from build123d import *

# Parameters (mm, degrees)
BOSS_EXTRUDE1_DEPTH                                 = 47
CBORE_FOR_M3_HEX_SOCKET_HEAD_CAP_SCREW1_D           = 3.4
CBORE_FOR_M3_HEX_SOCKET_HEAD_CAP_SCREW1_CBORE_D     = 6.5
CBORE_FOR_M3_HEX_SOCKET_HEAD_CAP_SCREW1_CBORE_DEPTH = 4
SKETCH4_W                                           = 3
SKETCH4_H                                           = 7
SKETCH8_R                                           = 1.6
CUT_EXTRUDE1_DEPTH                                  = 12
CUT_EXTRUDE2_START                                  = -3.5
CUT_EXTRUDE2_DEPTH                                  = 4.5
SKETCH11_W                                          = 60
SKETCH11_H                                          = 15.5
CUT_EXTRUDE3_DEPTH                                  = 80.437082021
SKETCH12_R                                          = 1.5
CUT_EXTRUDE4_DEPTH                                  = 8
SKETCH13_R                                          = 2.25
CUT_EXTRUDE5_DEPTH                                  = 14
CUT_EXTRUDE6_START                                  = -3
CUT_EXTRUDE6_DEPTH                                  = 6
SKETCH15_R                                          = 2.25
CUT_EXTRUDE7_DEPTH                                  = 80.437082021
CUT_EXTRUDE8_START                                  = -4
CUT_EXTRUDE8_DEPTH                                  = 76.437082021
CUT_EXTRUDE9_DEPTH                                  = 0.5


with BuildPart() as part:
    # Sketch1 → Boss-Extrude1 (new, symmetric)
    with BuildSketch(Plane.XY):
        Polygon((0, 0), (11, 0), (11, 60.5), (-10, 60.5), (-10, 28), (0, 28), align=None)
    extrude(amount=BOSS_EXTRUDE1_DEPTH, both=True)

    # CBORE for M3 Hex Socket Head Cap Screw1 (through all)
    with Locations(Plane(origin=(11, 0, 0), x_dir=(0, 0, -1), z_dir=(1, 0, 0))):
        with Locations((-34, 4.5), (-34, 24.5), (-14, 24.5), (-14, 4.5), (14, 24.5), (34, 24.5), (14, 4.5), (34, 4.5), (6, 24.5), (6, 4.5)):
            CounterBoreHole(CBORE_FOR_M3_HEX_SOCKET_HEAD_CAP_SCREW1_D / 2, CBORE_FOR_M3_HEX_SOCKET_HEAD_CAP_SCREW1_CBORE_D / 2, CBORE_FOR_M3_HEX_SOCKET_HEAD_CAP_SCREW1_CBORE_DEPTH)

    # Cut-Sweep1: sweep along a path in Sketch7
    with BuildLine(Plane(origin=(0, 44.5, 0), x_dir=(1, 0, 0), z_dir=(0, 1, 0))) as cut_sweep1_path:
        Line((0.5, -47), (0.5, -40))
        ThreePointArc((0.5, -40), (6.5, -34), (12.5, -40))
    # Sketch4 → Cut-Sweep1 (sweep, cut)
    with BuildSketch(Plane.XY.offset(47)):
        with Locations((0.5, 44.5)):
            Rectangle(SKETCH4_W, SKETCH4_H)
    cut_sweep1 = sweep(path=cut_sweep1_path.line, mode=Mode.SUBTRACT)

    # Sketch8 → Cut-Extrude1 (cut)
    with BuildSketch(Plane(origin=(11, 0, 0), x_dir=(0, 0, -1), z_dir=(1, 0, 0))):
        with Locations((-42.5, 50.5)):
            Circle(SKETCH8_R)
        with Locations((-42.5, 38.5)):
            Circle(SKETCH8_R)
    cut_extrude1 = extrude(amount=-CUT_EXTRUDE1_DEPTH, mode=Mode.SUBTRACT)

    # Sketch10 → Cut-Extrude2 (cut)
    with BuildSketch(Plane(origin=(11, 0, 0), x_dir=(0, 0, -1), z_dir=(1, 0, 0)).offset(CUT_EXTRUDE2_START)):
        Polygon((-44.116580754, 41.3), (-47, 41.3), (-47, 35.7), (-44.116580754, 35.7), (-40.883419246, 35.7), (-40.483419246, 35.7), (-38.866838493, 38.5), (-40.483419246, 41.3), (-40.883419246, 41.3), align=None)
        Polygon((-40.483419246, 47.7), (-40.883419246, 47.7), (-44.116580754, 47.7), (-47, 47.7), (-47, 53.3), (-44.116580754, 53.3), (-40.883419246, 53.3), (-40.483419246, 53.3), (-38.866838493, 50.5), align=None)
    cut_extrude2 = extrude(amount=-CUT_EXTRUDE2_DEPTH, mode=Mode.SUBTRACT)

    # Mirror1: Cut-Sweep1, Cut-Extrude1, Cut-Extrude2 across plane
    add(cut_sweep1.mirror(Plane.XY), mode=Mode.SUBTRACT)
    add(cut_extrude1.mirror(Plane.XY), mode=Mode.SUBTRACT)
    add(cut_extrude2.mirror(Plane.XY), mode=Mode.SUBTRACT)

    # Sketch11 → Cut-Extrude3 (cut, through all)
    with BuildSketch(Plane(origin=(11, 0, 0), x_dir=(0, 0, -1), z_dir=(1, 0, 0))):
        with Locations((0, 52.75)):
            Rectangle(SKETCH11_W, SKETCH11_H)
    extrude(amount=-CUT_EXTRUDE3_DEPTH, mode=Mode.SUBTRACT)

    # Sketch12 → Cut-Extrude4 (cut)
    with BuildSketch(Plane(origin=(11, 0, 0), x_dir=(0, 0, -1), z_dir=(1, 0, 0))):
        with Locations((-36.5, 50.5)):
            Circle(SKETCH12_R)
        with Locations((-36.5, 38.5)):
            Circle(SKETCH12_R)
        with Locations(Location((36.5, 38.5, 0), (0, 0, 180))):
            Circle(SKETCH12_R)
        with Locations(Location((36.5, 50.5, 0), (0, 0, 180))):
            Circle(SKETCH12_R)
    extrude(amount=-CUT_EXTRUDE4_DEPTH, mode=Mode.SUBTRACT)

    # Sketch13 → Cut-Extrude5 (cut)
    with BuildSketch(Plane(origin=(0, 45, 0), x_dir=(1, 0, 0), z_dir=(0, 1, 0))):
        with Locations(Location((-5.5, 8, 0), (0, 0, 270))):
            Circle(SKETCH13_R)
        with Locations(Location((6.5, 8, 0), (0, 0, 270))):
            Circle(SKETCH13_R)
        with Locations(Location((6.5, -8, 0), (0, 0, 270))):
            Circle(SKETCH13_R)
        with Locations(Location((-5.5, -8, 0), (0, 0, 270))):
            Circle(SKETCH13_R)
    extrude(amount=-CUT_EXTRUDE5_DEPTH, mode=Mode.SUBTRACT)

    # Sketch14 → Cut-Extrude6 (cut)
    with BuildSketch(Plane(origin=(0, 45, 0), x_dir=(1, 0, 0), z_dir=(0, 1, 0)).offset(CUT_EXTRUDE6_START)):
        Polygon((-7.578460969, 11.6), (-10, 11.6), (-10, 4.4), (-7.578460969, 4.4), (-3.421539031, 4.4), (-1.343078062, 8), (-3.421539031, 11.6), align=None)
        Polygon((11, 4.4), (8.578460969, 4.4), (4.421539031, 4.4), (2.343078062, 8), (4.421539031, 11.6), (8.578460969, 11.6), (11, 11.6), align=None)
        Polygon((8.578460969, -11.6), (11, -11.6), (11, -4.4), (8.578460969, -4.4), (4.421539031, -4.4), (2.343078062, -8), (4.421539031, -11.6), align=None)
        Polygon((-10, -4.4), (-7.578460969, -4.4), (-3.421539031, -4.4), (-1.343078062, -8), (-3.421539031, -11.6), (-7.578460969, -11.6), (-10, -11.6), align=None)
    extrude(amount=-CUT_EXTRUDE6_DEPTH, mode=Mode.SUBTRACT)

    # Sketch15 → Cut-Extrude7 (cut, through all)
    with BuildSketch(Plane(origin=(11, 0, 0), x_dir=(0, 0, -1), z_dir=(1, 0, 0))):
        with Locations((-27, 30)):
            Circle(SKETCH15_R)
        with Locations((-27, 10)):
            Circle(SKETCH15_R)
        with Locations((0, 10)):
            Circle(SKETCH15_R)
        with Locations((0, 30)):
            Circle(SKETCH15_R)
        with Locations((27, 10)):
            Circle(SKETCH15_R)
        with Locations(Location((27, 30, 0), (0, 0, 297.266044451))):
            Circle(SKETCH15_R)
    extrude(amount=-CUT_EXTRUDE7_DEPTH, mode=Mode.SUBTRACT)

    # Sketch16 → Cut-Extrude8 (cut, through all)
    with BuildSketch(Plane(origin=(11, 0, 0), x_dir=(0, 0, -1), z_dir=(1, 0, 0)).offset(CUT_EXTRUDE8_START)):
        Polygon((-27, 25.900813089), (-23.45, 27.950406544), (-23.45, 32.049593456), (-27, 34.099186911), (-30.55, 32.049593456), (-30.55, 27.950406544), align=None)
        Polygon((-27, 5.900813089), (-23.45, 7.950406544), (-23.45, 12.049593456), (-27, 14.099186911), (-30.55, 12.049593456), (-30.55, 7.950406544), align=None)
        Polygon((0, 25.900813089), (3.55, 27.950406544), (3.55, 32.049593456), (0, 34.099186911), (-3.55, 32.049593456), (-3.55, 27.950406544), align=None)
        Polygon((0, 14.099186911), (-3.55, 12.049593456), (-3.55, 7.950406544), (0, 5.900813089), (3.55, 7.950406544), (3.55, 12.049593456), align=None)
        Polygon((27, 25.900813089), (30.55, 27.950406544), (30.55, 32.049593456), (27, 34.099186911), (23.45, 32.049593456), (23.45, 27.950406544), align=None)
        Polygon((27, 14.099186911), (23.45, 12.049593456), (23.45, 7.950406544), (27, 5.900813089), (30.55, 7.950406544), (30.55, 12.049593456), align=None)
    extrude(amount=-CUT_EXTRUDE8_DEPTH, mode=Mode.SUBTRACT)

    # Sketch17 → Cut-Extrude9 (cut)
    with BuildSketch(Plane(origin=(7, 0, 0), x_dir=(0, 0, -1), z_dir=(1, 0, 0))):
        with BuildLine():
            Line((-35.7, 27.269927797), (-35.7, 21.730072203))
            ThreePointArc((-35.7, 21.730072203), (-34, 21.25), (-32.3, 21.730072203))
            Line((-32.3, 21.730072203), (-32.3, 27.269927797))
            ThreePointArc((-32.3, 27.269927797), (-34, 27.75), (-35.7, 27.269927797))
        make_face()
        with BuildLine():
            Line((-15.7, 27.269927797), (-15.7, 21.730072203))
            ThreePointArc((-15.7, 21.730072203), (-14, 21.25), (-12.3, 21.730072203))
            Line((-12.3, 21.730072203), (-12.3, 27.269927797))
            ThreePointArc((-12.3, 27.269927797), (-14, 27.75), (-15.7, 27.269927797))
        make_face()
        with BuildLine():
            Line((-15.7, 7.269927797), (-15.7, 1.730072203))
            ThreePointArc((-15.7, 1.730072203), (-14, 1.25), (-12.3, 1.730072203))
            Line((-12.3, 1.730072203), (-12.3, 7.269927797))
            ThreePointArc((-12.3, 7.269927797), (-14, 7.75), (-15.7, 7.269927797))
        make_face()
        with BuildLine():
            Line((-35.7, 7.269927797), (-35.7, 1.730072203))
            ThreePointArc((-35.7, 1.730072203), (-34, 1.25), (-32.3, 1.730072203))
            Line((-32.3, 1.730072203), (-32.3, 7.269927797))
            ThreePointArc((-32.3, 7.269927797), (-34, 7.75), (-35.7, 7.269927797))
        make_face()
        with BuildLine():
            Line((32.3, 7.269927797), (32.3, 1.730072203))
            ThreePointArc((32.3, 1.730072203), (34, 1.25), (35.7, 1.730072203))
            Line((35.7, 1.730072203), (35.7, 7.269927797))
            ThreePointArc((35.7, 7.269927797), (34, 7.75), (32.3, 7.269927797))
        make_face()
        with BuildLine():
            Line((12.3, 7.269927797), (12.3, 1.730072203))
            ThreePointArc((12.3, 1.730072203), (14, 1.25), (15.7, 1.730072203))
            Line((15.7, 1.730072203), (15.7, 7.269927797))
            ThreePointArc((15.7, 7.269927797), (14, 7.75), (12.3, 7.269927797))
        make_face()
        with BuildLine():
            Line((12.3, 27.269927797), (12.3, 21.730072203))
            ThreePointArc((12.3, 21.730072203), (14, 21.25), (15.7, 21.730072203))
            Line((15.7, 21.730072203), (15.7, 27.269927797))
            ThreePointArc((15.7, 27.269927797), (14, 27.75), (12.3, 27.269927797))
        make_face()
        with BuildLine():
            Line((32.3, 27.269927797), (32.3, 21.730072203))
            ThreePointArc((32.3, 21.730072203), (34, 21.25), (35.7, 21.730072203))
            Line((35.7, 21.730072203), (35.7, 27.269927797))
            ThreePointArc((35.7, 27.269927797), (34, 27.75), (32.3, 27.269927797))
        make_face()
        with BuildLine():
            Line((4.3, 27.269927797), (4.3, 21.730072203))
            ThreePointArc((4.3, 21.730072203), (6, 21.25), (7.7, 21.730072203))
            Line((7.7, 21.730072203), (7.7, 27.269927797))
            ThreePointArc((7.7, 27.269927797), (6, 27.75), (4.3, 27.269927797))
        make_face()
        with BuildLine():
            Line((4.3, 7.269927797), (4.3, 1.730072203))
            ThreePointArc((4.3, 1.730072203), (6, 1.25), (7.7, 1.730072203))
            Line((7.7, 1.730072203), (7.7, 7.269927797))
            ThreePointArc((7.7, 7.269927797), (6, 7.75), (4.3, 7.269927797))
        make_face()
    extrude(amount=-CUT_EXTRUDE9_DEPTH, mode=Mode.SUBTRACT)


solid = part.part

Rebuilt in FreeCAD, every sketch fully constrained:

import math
import FreeCAD as App
import Part
import Sketcher

V = App.Vector
Q = App.Units.Quantity

doc = App.newDocument("Part")
body = doc.addObject("PartDesign::Body", "Body")

# Sketch on XY plane
sketch1 = body.newObject("Sketcher::SketchObject", "Sketch")
sketch1.AttachmentSupport = (doc.getObject("XY_Plane"), [""])
sketch1.MapMode = "FlatFace"
sketch1.addGeometry([
    Part.LineSegment(V(0, 0, 0), V(11, 0, 0)),  # 0
    Part.LineSegment(V(11, 0, 0), V(11, 60, 0)),  # 1
    Part.LineSegment(V(11, 60, 0), V(-10, 60, 0)),  # 2
    Part.LineSegment(V(-10, 60, 0), V(-10, 28, 0)),  # 3
    Part.LineSegment(V(-10, 28, 0), V(0, 28, 0)),  # 4
    Part.LineSegment(V(0, 28, 0), V(0, 0, 0)),  # 5
], False)
sketch1.addConstraint([
    Sketcher.Constraint("Coincident", 0, 2, 1, 1),
    Sketcher.Constraint("Coincident", 1, 2, 2, 1),
    Sketcher.Constraint("Coincident", 2, 2, 3, 1),
    Sketcher.Constraint("Coincident", 3, 2, 4, 1),
    Sketcher.Constraint("Coincident", 4, 2, 5, 1),
    Sketcher.Constraint("Coincident", 5, 2, 0, 1),
    Sketcher.Constraint("Horizontal", 0),
    Sketcher.Constraint("Vertical", 1),
    Sketcher.Constraint("Horizontal", 2),
    Sketcher.Constraint("Vertical", 3),
    Sketcher.Constraint("Horizontal", 4),
    Sketcher.Constraint("Vertical", 5),
    Sketcher.Constraint("Coincident", 5, 2, -1, 1),
    Sketcher.Constraint("DistanceX", 0, 1, 0, 2, Q("11 mm")),
    Sketcher.Constraint("DistanceX", 2, 2, 2, 1, Q("21 mm")),
    Sketcher.Constraint("DistanceY", 5, 2, 5, 1, Q("28 mm")),
    Sketcher.Constraint("DistanceY", 1, 1, 1, 2, Q("60.5 mm")),
])
pad1 = body.newObject("PartDesign::Pad", "Pad")
pad1.Profile = sketch1
pad1.Length = 94
pad1.Midplane = True

# Sketch on YZ plane
sketch2 = body.newObject("Sketcher::SketchObject", "Sketch001")
sketch2.AttachmentSupport = (doc.getObject("YZ_Plane"), [""])
sketch2.MapMode = "FlatFace"
sketch2.AttachmentOffset = App.Placement(V(0, 0, 11), App.Rotation())
sketch2.addGeometry([
    Part.Circle(V(4.5, 34, 0), V(0, 0, 1), 1.7),  # 0
    Part.Circle(V(24.5, 34, 0), V(0, 0, 1), 1.7),  # 1
    Part.Circle(V(24.5, 14, 0), V(0, 0, 1), 1.7),  # 2
    Part.Circle(V(4.5, 14, 0), V(0, 0, 1), 1.7),  # 3
    Part.Circle(V(24.5, -14, 0), V(0, 0, 1), 1.7),  # 4
    Part.Circle(V(24.5, -34, 0), V(0, 0, 1), 1.7),  # 5
    Part.Circle(V(4.5, -14, 0), V(0, 0, 1), 1.7),  # 6
    Part.Circle(V(4.5, -34, 0), V(0, 0, 1), 1.7),  # 7
    Part.Circle(V(24.5, -6, 0), V(0, 0, 1), 1.7),  # 8
    Part.Circle(V(4.5, -6, 0), V(0, 0, 1), 1.7),  # 9
], False)
sketch2.addConstraint([
    Sketcher.Constraint("Equal", 0, 1),
    Sketcher.Constraint("Equal", 1, 2),
    Sketcher.Constraint("Equal", 2, 3),
    Sketcher.Constraint("Equal", 3, 4),
    Sketcher.Constraint("Equal", 4, 5),
    Sketcher.Constraint("Equal", 5, 6),
    Sketcher.Constraint("Equal", 6, 7),
    Sketcher.Constraint("Equal", 7, 8),
    Sketcher.Constraint("Equal", 8, 9),
    Sketcher.Constraint("Symmetric", 2, 3, 4, 3, -1),
    Sketcher.Constraint("Symmetric", 1, 3, 5, 3, -1),
    Sketcher.Constraint("Symmetric", 3, 3, 6, 3, -1),
    Sketcher.Constraint("Symmetric", 0, 3, 7, 3, -1),
    Sketcher.Constraint("Horizontal", 0, 3, 1, 3),
    Sketcher.Constraint("Horizontal", 2, 3, 3, 3),
    Sketcher.Constraint("Horizontal", 8, 3, 9, 3),
    Sketcher.Constraint("Vertical", 1, 3, 2, 3),
    Sketcher.Constraint("Vertical", 0, 3, 3, 3),
    Sketcher.Constraint("Vertical", 5, 3, 8, 3),
    Sketcher.Constraint("Vertical", 7, 3, 9, 3),
    Sketcher.Constraint("Diameter", 0, Q("3.4 mm")),
    Sketcher.Constraint("DistanceY", -1, 1, 0, 3, Q("34 mm")),
    Sketcher.Constraint("DistanceY", -1, 1, 2, 3, Q("14 mm")),
    Sketcher.Constraint("DistanceY", 8, 3, -1, 1, Q("6 mm")),
    Sketcher.Constraint("DistanceX", 0, 3, 1, 3, Q("20 mm")),
    Sketcher.Constraint("DistanceX", -1, 1, 0, 3, Q("4.5 mm")),
])
doc.recompute()
hole = body.newObject("PartDesign::Hole", "Hole")
hole.Profile = sketch2
hole.ThreadType = "None"
hole.Diameter = 3.4
hole.DepthType = "ThroughAll"
hole.HoleCutType = "Counterbore"
hole.HoleCutDiameter = 6.5
hole.HoleCutDepth = 4

# Sketch on XY plane
sketch3 = body.newObject("Sketcher::SketchObject", "Sketch002")
sketch3.AttachmentSupport = (doc.getObject("XY_Plane"), [""])
sketch3.MapMode = "FlatFace"
sketch3.AttachmentOffset = App.Placement(V(0, 0, 47), App.Rotation())
sketch3.addGeometry([
    Part.LineSegment(V(-1, 48, 0), V(-1, 41, 0)),
    Part.LineSegment(V(-1, 41, 0), V(2, 41, 0)),
    Part.LineSegment(V(2, 41, 0), V(2, 48, 0)),
    Part.LineSegment(V(2, 48, 0), V(-1, 48, 0)),
], False)
sketch3.addConstraint([
    Sketcher.Constraint("Coincident", 0, 2, 1, 1),
    Sketcher.Constraint("Coincident", 1, 2, 2, 1),
    Sketcher.Constraint("Coincident", 2, 2, 3, 1),
    Sketcher.Constraint("Coincident", 3, 2, 0, 1),
    Sketcher.Constraint("Vertical", 0),
    Sketcher.Constraint("Horizontal", 1),
    Sketcher.Constraint("Vertical", 2),
    Sketcher.Constraint("Horizontal", 3),
    Sketcher.Constraint("DistanceX", 1, 1, 1, 2, Q("3 mm")),
    Sketcher.Constraint("DistanceY", 0, 2, 0, 1, Q("7 mm")),
    Sketcher.Constraint("DistanceX", 0, 2, -1, 1, Q("1 mm")),
    Sketcher.Constraint("DistanceY", -1, 1, 0, 2, Q("41 mm")),
])

# Sketch on XZ plane
sketch4 = body.newObject("Sketcher::SketchObject", "Sketch003")
sketch4.AttachmentSupport = (doc.getObject("XZ_Plane"), [""])
sketch4.MapMode = "FlatFace"
sketch4.AttachmentOffset = App.Placement(V(0, 0, -44.5), App.Rotation())
sketch4.addGeometry([
    Part.LineSegment(V(0, 47, 0), V(0, 40, 0)),
    Part.ArcOfCircle(Part.Circle(V(6, 40, 0), V(0, 0, 1), 6), math.radians(180), math.radians(360)),
], False)
sketch4.addConstraint([
    Sketcher.Constraint("Tangent", 0, 2, 1, 1),
    Sketcher.Constraint("Vertical", 0),
    Sketcher.Constraint("Horizontal", 0, 2, 1, 2),
    Sketcher.Constraint("Radius", 1, Q("6 mm")),
    Sketcher.Constraint("DistanceY", 0, 2, 0, 1, Q("7 mm")),
    Sketcher.Constraint("DistanceY", -1, 1, 1, 3, Q("40 mm")),
    Sketcher.Constraint("DistanceX", -1, 1, 1, 3, Q("6.5 mm")),
])
doc.recompute()

subtractivepipe = body.newObject("PartDesign::SubtractivePipe", "SubtractivePipe")
subtractivepipe.Profile = sketch3
subtractivepipe.Spine = (sketch4, ["Edge1", "Edge2"])

# Sketch on YZ plane
sketch5 = body.newObject("Sketcher::SketchObject", "Sketch004")
sketch5.AttachmentSupport = (doc.getObject("YZ_Plane"), [""])
sketch5.MapMode = "FlatFace"
sketch5.AttachmentOffset = App.Placement(V(0, 0, 11), App.Rotation())
sketch5.addGeometry([
    Part.Circle(V(50.5, 42.5, 0), V(0, 0, 1), 1.6),
    Part.Circle(V(38.5, 42.5, 0), V(0, 0, 1), 1.6),
], False)
sketch5.addConstraint([
    Sketcher.Constraint("Equal", 0, 1),
    Sketcher.Constraint("Horizontal", 0, 3, 1, 3),
    Sketcher.Constraint("Diameter", 0, Q("3.2 mm")),
    Sketcher.Constraint("DistanceX", 1, 3, 0, 3, Q("12 mm")),
    Sketcher.Constraint("DistanceX", -1, 1, 0, 3, Q("50.5 mm")),
    Sketcher.Constraint("DistanceY", -1, 1, 0, 3, Q("42.5 mm")),
])
pocket1 = body.newObject("PartDesign::Pocket", "Pocket")
pocket1.Profile = sketch5
pocket1.Length = 12

# Sketch on YZ plane
sketch6 = body.newObject("Sketcher::SketchObject", "Sketch005")
sketch6.AttachmentSupport = (doc.getObject("YZ_Plane"), [""])
sketch6.MapMode = "FlatFace"
sketch6.AttachmentOffset = App.Placement(V(0, 0, 7.5), App.Rotation())
sketch6.addGeometry([
    Part.LineSegment(V(41.3, 47, 0), V(35.7, 47, 0)),  # 0
    Part.LineSegment(V(35.7, 47, 0), V(35.7, 40.5, 0)),  # 1
    Part.LineSegment(V(35.7, 40.5, 0), V(38.5, 38.9, 0)),  # 2
    Part.LineSegment(V(38.5, 38.9, 0), V(41.3, 40.5, 0)),  # 3
    Part.LineSegment(V(41.3, 40.5, 0), V(41.3, 47, 0)),  # 4
    Part.LineSegment(V(47.7, 47, 0), V(47.7, 40.5, 0)),  # 5
    Part.LineSegment(V(47.7, 40.5, 0), V(50.5, 38.9, 0)),  # 6
    Part.LineSegment(V(50.5, 38.9, 0), V(53.3, 40.5, 0)),  # 7
    Part.LineSegment(V(53.3, 40.5, 0), V(53.3, 47, 0)),  # 8
    Part.LineSegment(V(53.3, 47, 0), V(47.7, 47, 0)),  # 9
], False)
sketch6.addConstraint([
    Sketcher.Constraint("Coincident", 0, 2, 1, 1),
    Sketcher.Constraint("Coincident", 1, 2, 2, 1),
    Sketcher.Constraint("Coincident", 2, 2, 3, 1),
    Sketcher.Constraint("Coincident", 3, 2, 4, 1),
    Sketcher.Constraint("Coincident", 4, 2, 0, 1),
    Sketcher.Constraint("Coincident", 5, 2, 6, 1),
    Sketcher.Constraint("Coincident", 6, 2, 7, 1),
    Sketcher.Constraint("Coincident", 7, 2, 8, 1),
    Sketcher.Constraint("Coincident", 8, 2, 9, 1),
    Sketcher.Constraint("Coincident", 9, 2, 5, 1),
    Sketcher.Constraint("Horizontal", 0),
    Sketcher.Constraint("Vertical", 1),
    Sketcher.Constraint("Vertical", 4),
    Sketcher.Constraint("Vertical", 5),
    Sketcher.Constraint("Vertical", 8),
    Sketcher.Constraint("Horizontal", 9),
    Sketcher.Constraint("Parallel", 2, 6),
    Sketcher.Constraint("Parallel", 3, 7),
    Sketcher.Constraint("Horizontal", 1, 2, 3, 2),
    Sketcher.Constraint("Horizontal", 3, 2, 5, 2),
    Sketcher.Constraint("Horizontal", 2, 2, 6, 2),
    Sketcher.Constraint("Horizontal", 5, 2, 7, 2),
    Sketcher.Constraint("Horizontal", 4, 2, 8, 2),
    Sketcher.Constraint("Equal", 2, 3),
    Sketcher.Constraint("Angle", 2, Q("-30 deg")),
    Sketcher.Constraint("DistanceX", 0, 2, 0, 1, Q("5.6 mm")),
    Sketcher.Constraint("DistanceY", -1, 1, 0, 2, Q("47 mm")),
    Sketcher.Constraint("DistanceX", 1, 2, 5, 2, Q("12 mm")),
    Sketcher.Constraint("DistanceX", -1, 1, 0, 2, Q("35.7 mm")),
    Sketcher.Constraint("DistanceY", 1, 2, 1, 1, Q("6.516581 mm")),
])
pocket2 = body.newObject("PartDesign::Pocket", "Pocket001")
pocket2.Profile = sketch6
pocket2.Length = 4.5
doc.recompute()

mirrored = body.newObject("PartDesign::Mirrored", "Mirrored")
mirrored.Originals = [subtractivepipe, pocket1, pocket2]
mirrored.MirrorPlane = (doc.getObject("XY_Plane"), [""])
body.Tip = mirrored

# Sketch on YZ plane
sketch7 = body.newObject("Sketcher::SketchObject", "Sketch006")
sketch7.AttachmentSupport = (doc.getObject("YZ_Plane"), [""])
sketch7.MapMode = "FlatFace"
sketch7.AttachmentOffset = App.Placement(V(0, 0, 11), App.Rotation())
sketch7.addGeometry([
    Part.LineSegment(V(60, 30, 0), V(45, 30, 0)),
    Part.LineSegment(V(45, 30, 0), V(45, -30, 0)),
    Part.LineSegment(V(45, -30, 0), V(60, -30, 0)),
    Part.LineSegment(V(60, -30, 0), V(60, 30, 0)),
], False)
sketch7.addConstraint([
    Sketcher.Constraint("Coincident", 0, 2, 1, 1),
    Sketcher.Constraint("Coincident", 1, 2, 2, 1),
    Sketcher.Constraint("Coincident", 2, 2, 3, 1),
    Sketcher.Constraint("Coincident", 3, 2, 0, 1),
    Sketcher.Constraint("Horizontal", 0),
    Sketcher.Constraint("Vertical", 1),
    Sketcher.Constraint("Horizontal", 2),
    Sketcher.Constraint("Vertical", 3),
    Sketcher.Constraint("DistanceY", 1, 2, 1, 1, Q("60 mm")),
    Sketcher.Constraint("DistanceX", 0, 2, 0, 1, Q("15.5 mm")),
    Sketcher.Constraint("DistanceX", -1, 1, 0, 2, Q("45 mm")),
    Sketcher.Constraint("DistanceY", -1, 1, 0, 2, Q("30 mm")),
])
pocket3 = body.newObject("PartDesign::Pocket", "Pocket002")
pocket3.Profile = sketch7
pocket3.Type = "ThroughAll"

# Sketch on YZ plane
sketch8 = body.newObject("Sketcher::SketchObject", "Sketch007")
sketch8.AttachmentSupport = (doc.getObject("YZ_Plane"), [""])
sketch8.MapMode = "FlatFace"
sketch8.AttachmentOffset = App.Placement(V(0, 0, 11), App.Rotation())
sketch8.addGeometry([
    Part.Circle(V(50.5, 36.5, 0), V(0, 0, 1), 1.5),
    Part.Circle(V(38.5, 36.5, 0), V(0, 0, 1), 1.5),
    Part.Circle(V(38.5, -36.5, 0), V(0, 0, 1), 1.5),
    Part.Circle(V(50.5, -36.5, 0), V(0, 0, 1), 1.5),
], False)
sketch8.addConstraint([
    Sketcher.Constraint("Equal", 0, 1),
    Sketcher.Constraint("Equal", 1, 2),
    Sketcher.Constraint("Equal", 2, 3),
    Sketcher.Constraint("Symmetric", 1, 3, 2, 3, -1),
    Sketcher.Constraint("Symmetric", 0, 3, 3, 3, -1),
    Sketcher.Constraint("Horizontal", 0, 3, 1, 3),
    Sketcher.Constraint("Diameter", 0, Q("3 mm")),
    Sketcher.Constraint("DistanceX", 1, 3, 0, 3, Q("12 mm")),
    Sketcher.Constraint("DistanceY", 2, 3, 1, 3, Q("73 mm")),
    Sketcher.Constraint("DistanceX", -1, 1, 0, 3, Q("50.5 mm")),
])
pocket4 = body.newObject("PartDesign::Pocket", "Pocket003")
pocket4.Profile = sketch8
pocket4.Length = 8

# Sketch on XZ plane
sketch9 = body.newObject("Sketcher::SketchObject", "Sketch008")
sketch9.AttachmentSupport = (doc.getObject("XZ_Plane"), [""])
sketch9.MapMode = "FlatFace"
sketch9.AttachmentOffset = App.Placement(V(0, 0, -45), App.Rotation())
sketch9.addGeometry([
    Part.Circle(V(-5.5, -8, 0), V(0, 0, 1), 2.2),
    Part.Circle(V(6.5, -8, 0), V(0, 0, 1), 2.2),
    Part.Circle(V(6.5, 8, 0), V(0, 0, 1), 2.2),
    Part.Circle(V(-5.5, 8, 0), V(0, 0, 1), 2.2),
], False)
sketch9.addConstraint([
    Sketcher.Constraint("Equal", 0, 1),
    Sketcher.Constraint("Equal", 1, 2),
    Sketcher.Constraint("Equal", 2, 3),
    Sketcher.Constraint("Symmetric", 1, 3, 2, 3, -1),
    Sketcher.Constraint("Symmetric", 0, 3, 3, 3, -1),
    Sketcher.Constraint("Horizontal", 0, 3, 1, 3),
    Sketcher.Constraint("Diameter", 0, Q("4.5 mm")),
    Sketcher.Constraint("DistanceY", 0, 3, -1, 1, Q("8 mm")),
    Sketcher.Constraint("DistanceX", 0, 3, 1, 3, Q("12 mm")),
    Sketcher.Constraint("DistanceX", 0, 3, -1, 1, Q("5.5 mm")),
])
pocket5 = body.newObject("PartDesign::Pocket", "Pocket004")
pocket5.Profile = sketch9
pocket5.Length = 14
pocket5.Reversed = True

# Sketch on XZ plane
sketch10 = body.newObject("Sketcher::SketchObject", "Sketch009")
sketch10.AttachmentSupport = (doc.getObject("XZ_Plane"), [""])
sketch10.MapMode = "FlatFace"
sketch10.AttachmentOffset = App.Placement(V(0, 0, -42), App.Rotation())
sketch10.addGeometry([
    Part.LineSegment(V(-10, -11.6, 0), V(-10, -4.4, 0)),  # 0
    Part.LineSegment(V(-10, -4.4, 0), V(-3.4, -4.4, 0)),  # 1
    Part.LineSegment(V(-3.4, -4.4, 0), V(-1.3, -8, 0)),  # 2
    Part.LineSegment(V(-1.3, -8, 0), V(-3.4, -11.6, 0)),  # 3
    Part.LineSegment(V(-3.4, -11.6, 0), V(-10, -11.6, 0)),  # 4
    Part.LineSegment(V(4.4, -4.4, 0), V(11, -4.4, 0)),  # 5
    Part.LineSegment(V(11, -4.4, 0), V(11, -11.6, 0)),  # 6
    Part.LineSegment(V(11, -11.6, 0), V(4.4, -11.6, 0)),  # 7
    Part.LineSegment(V(4.4, -11.6, 0), V(2.3, -8, 0)),  # 8
    Part.LineSegment(V(2.3, -8, 0), V(4.4, -4.4, 0)),  # 9
    Part.LineSegment(V(11, 11.6, 0), V(11, 4.4, 0)),  # 10
    Part.LineSegment(V(11, 4.4, 0), V(4.4, 4.4, 0)),  # 11
    Part.LineSegment(V(4.4, 4.4, 0), V(2.3, 8, 0)),  # 12
    Part.LineSegment(V(2.3, 8, 0), V(4.4, 11.6, 0)),  # 13
    Part.LineSegment(V(4.4, 11.6, 0), V(11, 11.6, 0)),  # 14
    Part.LineSegment(V(-3.4, 4.4, 0), V(-10, 4.4, 0)),  # 15
    Part.LineSegment(V(-10, 4.4, 0), V(-10, 11.6, 0)),  # 16
    Part.LineSegment(V(-10, 11.6, 0), V(-3.4, 11.6, 0)),  # 17
    Part.LineSegment(V(-3.4, 11.6, 0), V(-1.3, 8, 0)),  # 18
    Part.LineSegment(V(-1.3, 8, 0), V(-3.4, 4.4, 0)),  # 19
], False)
sketch10.addConstraint([
    Sketcher.Constraint("Coincident", 0, 2, 1, 1),
    Sketcher.Constraint("Coincident", 1, 2, 2, 1),
    Sketcher.Constraint("Coincident", 2, 2, 3, 1),
    Sketcher.Constraint("Coincident", 3, 2, 4, 1),
    Sketcher.Constraint("Coincident", 4, 2, 0, 1),
    Sketcher.Constraint("Coincident", 5, 2, 6, 1),
    Sketcher.Constraint("Coincident", 6, 2, 7, 1),
    Sketcher.Constraint("Coincident", 7, 2, 8, 1),
    Sketcher.Constraint("Coincident", 8, 2, 9, 1),
    Sketcher.Constraint("Coincident", 9, 2, 5, 1),
    Sketcher.Constraint("Coincident", 10, 2, 11, 1),
    Sketcher.Constraint("Coincident", 11, 2, 12, 1),
    Sketcher.Constraint("Coincident", 12, 2, 13, 1),
    Sketcher.Constraint("Coincident", 13, 2, 14, 1),
    Sketcher.Constraint("Coincident", 14, 2, 10, 1),
    Sketcher.Constraint("Coincident", 15, 2, 16, 1),
    Sketcher.Constraint("Coincident", 16, 2, 17, 1),
    Sketcher.Constraint("Coincident", 17, 2, 18, 1),
    Sketcher.Constraint("Coincident", 18, 2, 19, 1),
    Sketcher.Constraint("Coincident", 19, 2, 15, 1),
    Sketcher.Constraint("Vertical", 0),
    Sketcher.Constraint("Horizontal", 1),
    Sketcher.Constraint("Horizontal", 4),
    Sketcher.Constraint("Horizontal", 5),
    Sketcher.Constraint("Vertical", 6),
    Sketcher.Constraint("Horizontal", 7),
    Sketcher.Constraint("Vertical", 10),
    Sketcher.Constraint("Horizontal", 11),
    Sketcher.Constraint("Horizontal", 14),
    Sketcher.Constraint("Horizontal", 15),
    Sketcher.Constraint("Vertical", 16),
    Sketcher.Constraint("Horizontal", 17),
    Sketcher.Constraint("Symmetric", 5, 2, 10, 2, -1),
    Sketcher.Constraint("Symmetric", 8, 2, 12, 2, -1),
    Sketcher.Constraint("Symmetric", 7, 2, 13, 2, -1),
    Sketcher.Constraint("Symmetric", 0, 2, 15, 2, -1),
    Sketcher.Constraint("Symmetric", 3, 2, 17, 2, -1),
    Sketcher.Constraint("Symmetric", 2, 2, 18, 2, -1),
    Sketcher.Constraint("Parallel", 2, 8),
    Sketcher.Constraint("Parallel", 3, 9),
    Sketcher.Constraint("Parallel", 8, 12),
    Sketcher.Constraint("Parallel", 9, 13),
    Sketcher.Constraint("Parallel", 13, 19),
    Sketcher.Constraint("Horizontal", 1, 2, 5, 2),
    Sketcher.Constraint("Horizontal", 4, 2, 6, 2),
    Sketcher.Constraint("Horizontal", 2, 2, 8, 2),
    Sketcher.Constraint("Vertical", 1, 2, 3, 2),
    Sketcher.Constraint("Equal", 4, 5),
    Sketcher.Constraint("Angle", 2, Q("-60 deg")),
    Sketcher.Constraint("DistanceY", 0, 1, 0, 2, Q("7.2 mm")),
    Sketcher.Constraint("DistanceX", 0, 2, -1, 1, Q("10 mm")),
    Sketcher.Constraint("DistanceY", 2, 2, -1, 1, Q("8 mm")),
    Sketcher.Constraint("DistanceX", -1, 1, 5, 2, Q("11 mm")),
    Sketcher.Constraint("DistanceX", 1, 1, 1, 2, Q("6.578461 mm")),
])
pocket6 = body.newObject("PartDesign::Pocket", "Pocket005")
pocket6.Profile = sketch10
pocket6.Length = 6
pocket6.Reversed = True

# Sketch on YZ plane
sketch11 = body.newObject("Sketcher::SketchObject", "Sketch010")
sketch11.AttachmentSupport = (doc.getObject("YZ_Plane"), [""])
sketch11.MapMode = "FlatFace"
sketch11.AttachmentOffset = App.Placement(V(0, 0, 11), App.Rotation())
sketch11.addGeometry([
    Part.Circle(V(30, 27, 0), V(0, 0, 1), 2.2),  # 0
    Part.Circle(V(10, 27, 0), V(0, 0, 1), 2.2),  # 1
    Part.Circle(V(10, 0, 0), V(0, 0, 1), 2.2),  # 2
    Part.Circle(V(30, 0, 0), V(0, 0, 1), 2.2),  # 3
    Part.Circle(V(10, -27, 0), V(0, 0, 1), 2.2),  # 4
    Part.Circle(V(30, -27, 0), V(0, 0, 1), 2.2),  # 5
], False)
sketch11.addConstraint([
    Sketcher.Constraint("Equal", 0, 1),
    Sketcher.Constraint("Equal", 1, 2),
    Sketcher.Constraint("Equal", 2, 3),
    Sketcher.Constraint("Equal", 3, 4),
    Sketcher.Constraint("Equal", 4, 5),
    Sketcher.Constraint("Symmetric", 1, 3, 4, 3, -1),
    Sketcher.Constraint("Symmetric", 0, 3, 5, 3, -1),
    Sketcher.Constraint("PointOnObject", 2, 3, -1),
    Sketcher.Constraint("PointOnObject", 3, 3, -1),
    Sketcher.Constraint("Horizontal", 0, 3, 1, 3),
    Sketcher.Constraint("Vertical", 1, 3, 2, 3),
    Sketcher.Constraint("Vertical", 0, 3, 3, 3),
    Sketcher.Constraint("Diameter", 0, Q("4.5 mm")),
    Sketcher.Constraint("DistanceX", -1, 1, 0, 3, Q("30 mm")),
    Sketcher.Constraint("DistanceY", -1, 1, 0, 3, Q("27 mm")),
    Sketcher.Constraint("DistanceX", -1, 1, 1, 3, Q("10 mm")),
])
pocket7 = body.newObject("PartDesign::Pocket", "Pocket006")
pocket7.Profile = sketch11
pocket7.Type = "ThroughAll"

# Sketch on YZ plane
sketch12 = body.newObject("Sketcher::SketchObject", "Sketch011")
sketch12.AttachmentSupport = (doc.getObject("YZ_Plane"), [""])
sketch12.MapMode = "FlatFace"
sketch12.AttachmentOffset = App.Placement(V(0, 0, 7), App.Rotation())
sketch12.addGeometry([
    Part.LineSegment(V(25.9, 27, 0), V(28, 23.4, 0)),  # 0
    Part.LineSegment(V(28, 23.4, 0), V(32, 23.4, 0)),  # 1
    Part.LineSegment(V(32, 23.4, 0), V(34.1, 27, 0)),  # 2
    Part.LineSegment(V(34.1, 27, 0), V(32, 30.6, 0)),  # 3
    Part.LineSegment(V(32, 30.6, 0), V(28, 30.6, 0)),  # 4
    Part.LineSegment(V(28, 30.6, 0), V(25.9, 27, 0)),  # 5
    Part.LineSegment(V(5.9, 27, 0), V(8, 23.4, 0)),  # 6
    Part.LineSegment(V(8, 23.4, 0), V(12, 23.4, 0)),  # 7
    Part.LineSegment(V(12, 23.4, 0), V(14.1, 27, 0)),  # 8
    Part.LineSegment(V(14.1, 27, 0), V(12, 30.6, 0)),  # 9
    Part.LineSegment(V(12, 30.6, 0), V(8, 30.6, 0)),  # 10
    Part.LineSegment(V(8, 30.6, 0), V(5.9, 27, 0)),  # 11
    Part.LineSegment(V(25.9, 0, 0), V(28, -3.5, 0)),  # 12
    Part.LineSegment(V(28, -3.5, 0), V(32, -3.5, 0)),  # 13
    Part.LineSegment(V(32, -3.5, 0), V(34.1, 0, 0)),  # 14
    Part.LineSegment(V(34.1, 0, 0), V(32, 3.5, 0)),  # 15
    Part.LineSegment(V(32, 3.5, 0), V(28, 3.5, 0)),  # 16
    Part.LineSegment(V(28, 3.5, 0), V(25.9, 0, 0)),  # 17
    Part.LineSegment(V(14.1, 0, 0), V(12, 3.5, 0)),  # 18
    Part.LineSegment(V(12, 3.5, 0), V(8, 3.5, 0)),  # 19
    Part.LineSegment(V(8, 3.5, 0), V(5.9, 0, 0)),  # 20
    Part.LineSegment(V(5.9, 0, 0), V(8, -3.5, 0)),  # 21
    Part.LineSegment(V(8, -3.5, 0), V(12, -3.5, 0)),  # 22
    Part.LineSegment(V(12, -3.5, 0), V(14.1, 0, 0)),  # 23
    Part.LineSegment(V(25.9, -27, 0), V(28, -30.6, 0)),  # 24
    Part.LineSegment(V(28, -30.6, 0), V(32, -30.6, 0)),  # 25
    Part.LineSegment(V(32, -30.6, 0), V(34.1, -27, 0)),  # 26
    Part.LineSegment(V(34.1, -27, 0), V(32, -23.4, 0)),  # 27
    Part.LineSegment(V(32, -23.4, 0), V(28, -23.4, 0)),  # 28
    Part.LineSegment(V(28, -23.4, 0), V(25.9, -27, 0)),  # 29
    Part.LineSegment(V(14.1, -27, 0), V(12, -23.4, 0)),  # 30
    Part.LineSegment(V(12, -23.4, 0), V(8, -23.4, 0)),  # 31
    Part.LineSegment(V(8, -23.4, 0), V(5.9, -27, 0)),  # 32
    Part.LineSegment(V(5.9, -27, 0), V(8, -30.6, 0)),  # 33
    Part.LineSegment(V(8, -30.6, 0), V(12, -30.6, 0)),  # 34
    Part.LineSegment(V(12, -30.6, 0), V(14.1, -27, 0)),  # 35
], False)
sketch12.addConstraint([
    Sketcher.Constraint("Coincident", 0, 2, 1, 1),
    Sketcher.Constraint("Coincident", 1, 2, 2, 1),
    Sketcher.Constraint("Coincident", 2, 2, 3, 1),
    Sketcher.Constraint("Coincident", 3, 2, 4, 1),
    Sketcher.Constraint("Coincident", 4, 2, 5, 1),
    Sketcher.Constraint("Coincident", 5, 2, 0, 1),
    Sketcher.Constraint("Coincident", 6, 2, 7, 1),
    Sketcher.Constraint("Coincident", 7, 2, 8, 1),
    Sketcher.Constraint("Coincident", 8, 2, 9, 1),
    Sketcher.Constraint("Coincident", 9, 2, 10, 1),
    Sketcher.Constraint("Coincident", 10, 2, 11, 1),
    Sketcher.Constraint("Coincident", 11, 2, 6, 1),
    Sketcher.Constraint("Coincident", 12, 2, 13, 1),
    Sketcher.Constraint("Coincident", 13, 2, 14, 1),
    Sketcher.Constraint("Coincident", 14, 2, 15, 1),
    Sketcher.Constraint("Coincident", 15, 2, 16, 1),
    Sketcher.Constraint("Coincident", 16, 2, 17, 1),
    Sketcher.Constraint("Coincident", 17, 2, 12, 1),
    Sketcher.Constraint("Coincident", 18, 2, 19, 1),
    Sketcher.Constraint("Coincident", 19, 2, 20, 1),
    Sketcher.Constraint("Coincident", 20, 2, 21, 1),
    Sketcher.Constraint("Coincident", 21, 2, 22, 1),
    Sketcher.Constraint("Coincident", 22, 2, 23, 1),
    Sketcher.Constraint("Coincident", 23, 2, 18, 1),
    Sketcher.Constraint("Coincident", 24, 2, 25, 1),
    Sketcher.Constraint("Coincident", 25, 2, 26, 1),
    Sketcher.Constraint("Coincident", 26, 2, 27, 1),
    Sketcher.Constraint("Coincident", 27, 2, 28, 1),
    Sketcher.Constraint("Coincident", 28, 2, 29, 1),
    Sketcher.Constraint("Coincident", 29, 2, 24, 1),
    Sketcher.Constraint("Coincident", 30, 2, 31, 1),
    Sketcher.Constraint("Coincident", 31, 2, 32, 1),
    Sketcher.Constraint("Coincident", 32, 2, 33, 1),
    Sketcher.Constraint("Coincident", 33, 2, 34, 1),
    Sketcher.Constraint("Coincident", 34, 2, 35, 1),
    Sketcher.Constraint("Coincident", 35, 2, 30, 1),
    Sketcher.Constraint("Horizontal", 1),
    Sketcher.Constraint("Horizontal", 4),
    Sketcher.Constraint("Horizontal", 7),
    Sketcher.Constraint("Horizontal", 10),
    Sketcher.Constraint("Horizontal", 13),
    Sketcher.Constraint("Horizontal", 16),
    Sketcher.Constraint("Horizontal", 19),
    Sketcher.Constraint("Horizontal", 22),
    Sketcher.Constraint("Horizontal", 25),
    Sketcher.Constraint("Horizontal", 28),
    Sketcher.Constraint("Horizontal", 31),
    Sketcher.Constraint("Horizontal", 34),
    Sketcher.Constraint("Symmetric", 13, 2, 15, 2, -1),
    Sketcher.Constraint("Symmetric", 19, 2, 21, 2, -1),
    Sketcher.Constraint("Symmetric", 4, 2, 24, 2, -1),
    Sketcher.Constraint("Symmetric", 2, 2, 26, 2, -1),
    Sketcher.Constraint("Symmetric", 1, 2, 27, 2, -1),
    Sketcher.Constraint("Symmetric", 5, 2, 29, 2, -1),
    Sketcher.Constraint("Symmetric", 7, 2, 30, 2, -1),
    Sketcher.Constraint("Symmetric", 11, 2, 32, 2, -1),
    Sketcher.Constraint("Symmetric", 10, 2, 33, 2, -1),
    Sketcher.Constraint("Symmetric", 8, 2, 35, 2, -1),
    Sketcher.Constraint("PointOnObject", 14, 2, -1),
    Sketcher.Constraint("PointOnObject", 17, 2, -1),
    Sketcher.Constraint("PointOnObject", 20, 2, -1),
    Sketcher.Constraint("PointOnObject", 23, 2, -1),
    Sketcher.Constraint("Parallel", 0, 3),
    Sketcher.Constraint("Parallel", 2, 5),
    Sketcher.Constraint("Parallel", 3, 6),
    Sketcher.Constraint("Parallel", 5, 8),
    Sketcher.Constraint("Parallel", 6, 9),
    Sketcher.Constraint("Parallel", 8, 11),
    Sketcher.Constraint("Parallel", 9, 12),
    Sketcher.Constraint("Parallel", 11, 14),
    Sketcher.Constraint("Parallel", 12, 15),
    Sketcher.Constraint("Parallel", 14, 17),
    Sketcher.Constraint("Parallel", 15, 18),
    Sketcher.Constraint("Parallel", 17, 20),
    Sketcher.Constraint("Parallel", 20, 23),
    Sketcher.Constraint("Parallel", 23, 26),
    Sketcher.Constraint("Parallel", 26, 29),
    Sketcher.Constraint("Parallel", 29, 32),
    Sketcher.Constraint("Parallel", 32, 35),
    Sketcher.Constraint("Horizontal", 2, 2, 5, 2),
    Sketcher.Constraint("Horizontal", 1, 2, 6, 2),
    Sketcher.Constraint("Horizontal", 5, 2, 8, 2),
    Sketcher.Constraint("Horizontal", 4, 2, 9, 2),
    Sketcher.Constraint("Horizontal", 8, 2, 11, 2),
    Sketcher.Constraint("Horizontal", 16, 2, 18, 2),
    Sketcher.Constraint("Vertical", 1, 2, 3, 2),
    Sketcher.Constraint("Vertical", 4, 2, 12, 2),
    Sketcher.Constraint("Vertical", 3, 2, 13, 2),
    Sketcher.Constraint("Vertical", 2, 2, 14, 2),
    Sketcher.Constraint("Vertical", 9, 2, 18, 2),
    Sketcher.Constraint("Vertical", 10, 2, 19, 2),
    Sketcher.Constraint("Equal", 4, 7),
    Sketcher.Constraint("Angle", 0, Q("-60 deg")),
    Sketcher.Constraint("DistanceY", -1, 1, 2, 2, Q("27 mm")),
    Sketcher.Constraint("DistanceX", 6, 2, 0, 2, Q("20 mm")),
    Sketcher.Constraint("DistanceY", 1, 2, 3, 2, Q("7.1 mm")),
    Sketcher.Constraint("DistanceX", 1, 1, 1, 2, Q("4.099187 mm")),
    Sketcher.Constraint("DistanceX", -1, 1, 0, 2, Q("27.950407 mm")),
])
pocket8 = body.newObject("PartDesign::Pocket", "Pocket007")
pocket8.Profile = sketch12
pocket8.Type = "ThroughAll"

# Sketch on YZ plane
sketch13 = body.newObject("Sketcher::SketchObject", "Sketch012")
sketch13.AttachmentSupport = (doc.getObject("YZ_Plane"), [""])
sketch13.MapMode = "FlatFace"
sketch13.AttachmentOffset = App.Placement(V(0, 0, 7), App.Rotation())
sketch13.addGeometry([
    Part.LineSegment(V(27.3, 35.7, 0), V(21.7, 35.7, 0)),  # 0
    Part.ArcOfCircle(Part.Circle(V(24.5, 34, 0), V(0, 0, 1), 3.3), math.radians(148), math.radians(212)),  # 1
    Part.LineSegment(V(21.7, 32.3, 0), V(27.3, 32.3, 0)),  # 2
    Part.ArcOfCircle(Part.Circle(V(24.5, 34, 0), V(0, 0, 1), 3.3), math.radians(-32), math.radians(32)),  # 3
    Part.LineSegment(V(27.3, 15.7, 0), V(21.7, 15.7, 0)),  # 4
    Part.ArcOfCircle(Part.Circle(V(24.5, 14, 0), V(0, 0, 1), 3.3), math.radians(148), math.radians(212)),  # 5
    Part.LineSegment(V(21.7, 12.3, 0), V(27.3, 12.3, 0)),  # 6
    Part.ArcOfCircle(Part.Circle(V(24.5, 14, 0), V(0, 0, 1), 3.3), math.radians(-32), math.radians(32)),  # 7
    Part.LineSegment(V(7.3, 15.7, 0), V(1.7, 15.7, 0)),  # 8
    Part.ArcOfCircle(Part.Circle(V(4.5, 14, 0), V(0, 0, 1), 3.3), math.radians(148), math.radians(212)),  # 9
    Part.LineSegment(V(1.7, 12.3, 0), V(7.3, 12.3, 0)),  # 10
    Part.ArcOfCircle(Part.Circle(V(4.5, 14, 0), V(0, 0, 1), 3.3), math.radians(-32), math.radians(32)),  # 11
    Part.LineSegment(V(7.3, 35.7, 0), V(1.7, 35.7, 0)),  # 12
    Part.ArcOfCircle(Part.Circle(V(4.5, 34, 0), V(0, 0, 1), 3.3), math.radians(148), math.radians(212)),  # 13
    Part.LineSegment(V(1.7, 32.3, 0), V(7.3, 32.3, 0)),  # 14
    Part.ArcOfCircle(Part.Circle(V(4.5, 34, 0), V(0, 0, 1), 3.3), math.radians(-32), math.radians(32)),  # 15
    Part.LineSegment(V(7.3, -32.3, 0), V(1.7, -32.3, 0)),  # 16
    Part.ArcOfCircle(Part.Circle(V(4.5, -34, 0), V(0, 0, 1), 3.3), math.radians(148), math.radians(212)),  # 17
    Part.LineSegment(V(1.7, -35.7, 0), V(7.3, -35.7, 0)),  # 18
    Part.ArcOfCircle(Part.Circle(V(4.5, -34, 0), V(0, 0, 1), 3.3), math.radians(-32), math.radians(32)),  # 19
    Part.LineSegment(V(7.3, -12.3, 0), V(1.7, -12.3, 0)),  # 20
    Part.ArcOfCircle(Part.Circle(V(4.5, -14, 0), V(0, 0, 1), 3.3), math.radians(148), math.radians(212)),  # 21
    Part.LineSegment(V(1.7, -15.7, 0), V(7.3, -15.7, 0)),  # 22
    Part.ArcOfCircle(Part.Circle(V(4.5, -14, 0), V(0, 0, 1), 3.3), math.radians(-32), math.radians(32)),  # 23
    Part.LineSegment(V(27.3, -12.3, 0), V(21.7, -12.3, 0)),  # 24
    Part.ArcOfCircle(Part.Circle(V(24.5, -14, 0), V(0, 0, 1), 3.3), math.radians(148), math.radians(212)),  # 25
    Part.LineSegment(V(21.7, -15.7, 0), V(27.3, -15.7, 0)),  # 26
    Part.ArcOfCircle(Part.Circle(V(24.5, -14, 0), V(0, 0, 1), 3.3), math.radians(-32), math.radians(32)),  # 27
    Part.LineSegment(V(27.3, -32.3, 0), V(21.7, -32.3, 0)),  # 28
    Part.ArcOfCircle(Part.Circle(V(24.5, -34, 0), V(0, 0, 1), 3.3), math.radians(148), math.radians(212)),  # 29
    Part.LineSegment(V(21.7, -35.7, 0), V(27.3, -35.7, 0)),  # 30
    Part.ArcOfCircle(Part.Circle(V(24.5, -34, 0), V(0, 0, 1), 3.3), math.radians(-32), math.radians(32)),  # 31
    Part.LineSegment(V(27.3, -4.3, 0), V(21.7, -4.3, 0)),  # 32
    Part.ArcOfCircle(Part.Circle(V(24.5, -6, 0), V(0, 0, 1), 3.3), math.radians(148), math.radians(212)),  # 33
    Part.LineSegment(V(21.7, -7.7, 0), V(27.3, -7.7, 0)),  # 34
    Part.ArcOfCircle(Part.Circle(V(24.5, -6, 0), V(0, 0, 1), 3.3), math.radians(-32), math.radians(32)),  # 35
    Part.LineSegment(V(7.3, -4.3, 0), V(1.7, -4.3, 0)),  # 36
    Part.ArcOfCircle(Part.Circle(V(4.5, -6, 0), V(0, 0, 1), 3.3), math.radians(148), math.radians(212)),  # 37
    Part.LineSegment(V(1.7, -7.7, 0), V(7.3, -7.7, 0)),  # 38
    Part.ArcOfCircle(Part.Circle(V(4.5, -6, 0), V(0, 0, 1), 3.3), math.radians(-32), math.radians(32)),  # 39
], False)
sketch13.addConstraint([
    Sketcher.Constraint("Coincident", 0, 2, 1, 1),
    Sketcher.Constraint("Coincident", 1, 2, 2, 1),
    Sketcher.Constraint("Coincident", 2, 2, 3, 1),
    Sketcher.Constraint("Coincident", 3, 2, 0, 1),
    Sketcher.Constraint("Coincident", 4, 2, 5, 1),
    Sketcher.Constraint("Coincident", 5, 2, 6, 1),
    Sketcher.Constraint("Coincident", 6, 2, 7, 1),
    Sketcher.Constraint("Coincident", 7, 2, 4, 1),
    Sketcher.Constraint("Coincident", 8, 2, 9, 1),
    Sketcher.Constraint("Coincident", 9, 2, 10, 1),
    Sketcher.Constraint("Coincident", 10, 2, 11, 1),
    Sketcher.Constraint("Coincident", 11, 2, 8, 1),
    Sketcher.Constraint("Coincident", 12, 2, 13, 1),
    Sketcher.Constraint("Coincident", 13, 2, 14, 1),
    Sketcher.Constraint("Coincident", 14, 2, 15, 1),
    Sketcher.Constraint("Coincident", 15, 2, 12, 1),
    Sketcher.Constraint("Coincident", 16, 2, 17, 1),
    Sketcher.Constraint("Coincident", 17, 2, 18, 1),
    Sketcher.Constraint("Coincident", 18, 2, 19, 1),
    Sketcher.Constraint("Coincident", 19, 2, 16, 1),
    Sketcher.Constraint("Coincident", 20, 2, 21, 1),
    Sketcher.Constraint("Coincident", 21, 2, 22, 1),
    Sketcher.Constraint("Coincident", 22, 2, 23, 1),
    Sketcher.Constraint("Coincident", 23, 2, 20, 1),
    Sketcher.Constraint("Coincident", 24, 2, 25, 1),
    Sketcher.Constraint("Coincident", 25, 2, 26, 1),
    Sketcher.Constraint("Coincident", 26, 2, 27, 1),
    Sketcher.Constraint("Coincident", 27, 2, 24, 1),
    Sketcher.Constraint("Coincident", 28, 2, 29, 1),
    Sketcher.Constraint("Coincident", 29, 2, 30, 1),
    Sketcher.Constraint("Coincident", 30, 2, 31, 1),
    Sketcher.Constraint("Coincident", 31, 2, 28, 1),
    Sketcher.Constraint("Coincident", 32, 2, 33, 1),
    Sketcher.Constraint("Coincident", 33, 2, 34, 1),
    Sketcher.Constraint("Coincident", 34, 2, 35, 1),
    Sketcher.Constraint("Coincident", 35, 2, 32, 1),
    Sketcher.Constraint("Coincident", 36, 2, 37, 1),
    Sketcher.Constraint("Coincident", 37, 2, 38, 1),
    Sketcher.Constraint("Coincident", 38, 2, 39, 1),
    Sketcher.Constraint("Coincident", 39, 2, 36, 1),
    Sketcher.Constraint("Horizontal", 0),
    Sketcher.Constraint("Horizontal", 2),
    Sketcher.Constraint("Horizontal", 4),
    Sketcher.Constraint("Horizontal", 6),
    Sketcher.Constraint("Horizontal", 8),
    Sketcher.Constraint("Horizontal", 10),
    Sketcher.Constraint("Horizontal", 12),
    Sketcher.Constraint("Horizontal", 14),
    Sketcher.Constraint("Horizontal", 16),
    Sketcher.Constraint("Horizontal", 18),
    Sketcher.Constraint("Horizontal", 20),
    Sketcher.Constraint("Horizontal", 22),
    Sketcher.Constraint("Horizontal", 24),
    Sketcher.Constraint("Horizontal", 26),
    Sketcher.Constraint("Horizontal", 28),
    Sketcher.Constraint("Horizontal", 30),
    Sketcher.Constraint("Horizontal", 32),
    Sketcher.Constraint("Horizontal", 34),
    Sketcher.Constraint("Horizontal", 36),
    Sketcher.Constraint("Horizontal", 38),
    Sketcher.Constraint("Coincident", 3, 3, 1, 3),
    Sketcher.Constraint("Coincident", 7, 3, 5, 3),
    Sketcher.Constraint("Coincident", 11, 3, 9, 3),
    Sketcher.Constraint("Coincident", 15, 3, 13, 3),
    Sketcher.Constraint("Coincident", 19, 3, 17, 3),
    Sketcher.Constraint("Coincident", 23, 3, 21, 3),
    Sketcher.Constraint("Coincident", 27, 3, 25, 3),
    Sketcher.Constraint("Coincident", 31, 3, 29, 3),
    Sketcher.Constraint("Coincident", 35, 3, 33, 3),
    Sketcher.Constraint("Coincident", 39, 3, 37, 3),
    Sketcher.Constraint("Equal", 1, 3),
    Sketcher.Constraint("Equal", 3, 5),
    Sketcher.Constraint("Equal", 5, 7),
    Sketcher.Constraint("Equal", 7, 9),
    Sketcher.Constraint("Equal", 9, 11),
    Sketcher.Constraint("Equal", 11, 13),
    Sketcher.Constraint("Equal", 13, 15),
    Sketcher.Constraint("Equal", 15, 17),
    Sketcher.Constraint("Equal", 17, 19),
    Sketcher.Constraint("Equal", 19, 21),
    Sketcher.Constraint("Equal", 21, 23),
    Sketcher.Constraint("Equal", 23, 25),
    Sketcher.Constraint("Equal", 25, 27),
    Sketcher.Constraint("Equal", 27, 29),
    Sketcher.Constraint("Equal", 29, 31),
    Sketcher.Constraint("Equal", 31, 33),
    Sketcher.Constraint("Equal", 33, 35),
    Sketcher.Constraint("Equal", 35, 37),
    Sketcher.Constraint("Equal", 37, 39),
    Sketcher.Constraint("Symmetric", 13, 3, 17, 3, -1),
    Sketcher.Constraint("Symmetric", 9, 3, 21, 3, -1),
    Sketcher.Constraint("Symmetric", 5, 3, 25, 3, -1),
    Sketcher.Constraint("Symmetric", 1, 3, 29, 3, -1),
    Sketcher.Constraint("Horizontal", 7, 3, 9, 3),
    Sketcher.Constraint("Horizontal", 3, 3, 13, 3),
    Sketcher.Constraint("Horizontal", 35, 3, 37, 3),
    Sketcher.Constraint("Horizontal", 7, 2, 8, 2),
    Sketcher.Constraint("Horizontal", 6, 2, 9, 2),
    Sketcher.Constraint("Horizontal", 3, 2, 12, 2),
    Sketcher.Constraint("Horizontal", 2, 2, 13, 2),
    Sketcher.Constraint("Horizontal", 23, 2, 24, 2),
    Sketcher.Constraint("Horizontal", 22, 2, 25, 2),
    Sketcher.Constraint("Horizontal", 19, 2, 28, 2),
    Sketcher.Constraint("Horizontal", 18, 2, 29, 2),
    Sketcher.Constraint("Horizontal", 35, 2, 36, 2),
    Sketcher.Constraint("Horizontal", 34, 2, 37, 2),
    Sketcher.Constraint("Vertical", 3, 3, 5, 3),
    Sketcher.Constraint("Vertical", 11, 3, 13, 3),
    Sketcher.Constraint("Vertical", 31, 3, 33, 3),
    Sketcher.Constraint("Vertical", 23, 3, 37, 3),
    Sketcher.Constraint("Vertical", 0, 2, 1, 2),
    Sketcher.Constraint("Vertical", 1, 2, 4, 2),
    Sketcher.Constraint("Vertical", 4, 2, 5, 2),
    Sketcher.Constraint("Vertical", 13, 2, 16, 2),
    Sketcher.Constraint("Vertical", 16, 2, 17, 2),
    Sketcher.Constraint("Vertical", 17, 2, 20, 2),
    Sketcher.Constraint("Vertical", 20, 2, 21, 2),
    Sketcher.Constraint("Vertical", 29, 2, 32, 2),
    Sketcher.Constraint("Vertical", 32, 2, 33, 2),
    Sketcher.Constraint("Radius", 1, Q("3.25 mm")),
    Sketcher.Constraint("DistanceY", -1, 1, 1, 3, Q("34 mm")),
    Sketcher.Constraint("DistanceY", -1, 1, 5, 3, Q("14 mm")),
    Sketcher.Constraint("DistanceY", 33, 3, -1, 1, Q("6 mm")),
    Sketcher.Constraint("DistanceX", 9, 3, 7, 3, Q("20 mm")),
    Sketcher.Constraint("DistanceX", -1, 1, 1, 3, Q("24.5 mm")),
    Sketcher.Constraint("DistanceY", -1, 1, 0, 2, Q("35.7 mm")),
])
pocket9 = body.newObject("PartDesign::Pocket", "Pocket008")
pocket9.Profile = sketch13
pocket9.Length = 0.5

doc.recompute()
